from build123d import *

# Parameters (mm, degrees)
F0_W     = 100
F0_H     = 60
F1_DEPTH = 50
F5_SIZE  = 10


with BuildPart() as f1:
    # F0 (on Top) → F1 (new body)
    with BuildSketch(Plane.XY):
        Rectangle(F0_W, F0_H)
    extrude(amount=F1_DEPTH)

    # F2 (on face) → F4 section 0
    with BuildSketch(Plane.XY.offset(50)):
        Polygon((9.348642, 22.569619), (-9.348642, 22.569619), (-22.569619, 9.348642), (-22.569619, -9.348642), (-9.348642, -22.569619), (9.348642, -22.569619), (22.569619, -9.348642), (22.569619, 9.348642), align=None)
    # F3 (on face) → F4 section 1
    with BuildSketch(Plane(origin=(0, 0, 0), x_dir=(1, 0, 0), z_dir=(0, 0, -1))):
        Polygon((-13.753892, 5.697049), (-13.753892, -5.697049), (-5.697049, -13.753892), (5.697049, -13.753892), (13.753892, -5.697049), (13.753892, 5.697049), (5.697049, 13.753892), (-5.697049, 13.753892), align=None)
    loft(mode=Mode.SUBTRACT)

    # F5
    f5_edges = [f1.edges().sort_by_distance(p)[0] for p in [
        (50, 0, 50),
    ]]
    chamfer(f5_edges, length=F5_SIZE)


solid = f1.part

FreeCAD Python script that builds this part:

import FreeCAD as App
import Part
import Sketcher

V = App.Vector


def edges_at(feature, points):
    """Names of the edges that pass closest to the given points."""
    edges = feature.Shape.Edges
    near = lambda p: min(range(len(edges)), key=lambda i: edges[i].distToShape(Part.Vertex(*p))[0])
    return sorted({f"Edge{near(p) + 1}" for p in points})

doc = App.newDocument("Part")
params = doc.addObject("Spreadsheet::Sheet", "Params")
for row, (alias, value) in enumerate([
    ("sketch1_width", "100 mm"),
    ("sketch1_height", "60 mm"),
    ("pad1_length", "50 mm"),
    ("chamfer_size", "10 mm"),
], start=1):
    params.set(f"A{row}", alias)
    params.set(f"B{row}", "=" + value)
    params.setAlias(f"B{row}", alias)

body = doc.addObject("PartDesign::Body", "Body")

sketch1 = doc.addObject("Sketcher::SketchObject", "Sketch")
body.addObject(sketch1)
sketch1.AttachmentSupport = (doc.XY_Plane, [""])
sketch1.MapMode = "FlatFace"
sketch1.addGeometry([
    Part.LineSegment(V(-50, 30, 0), V(-50, -30, 0)),
    Part.LineSegment(V(-50, -30, 0), V(50, -30, 0)),
    Part.LineSegment(V(50, -30, 0), V(50, 30, 0)),
    Part.LineSegment(V(50, 30, 0), V(-50, 30, 0)),
], False)
sketch1.addConstraint([
    Sketcher.Constraint("Coincident", 0, 2, 1, 1),
    Sketcher.Constraint("Coincident", 1, 2, 2, 1),
    Sketcher.Constraint("Coincident", 2, 2, 3, 1),
    Sketcher.Constraint("Coincident", 3, 2, 0, 1),
    Sketcher.Constraint("Vertical", 0),
    Sketcher.Constraint("Horizontal", 1),
    Sketcher.Constraint("Vertical", 2),
    Sketcher.Constraint("Horizontal", 3),
    Sketcher.Constraint("Symmetric", 0, 2, 2, 2, -1, 1),
    Sketcher.Constraint("DistanceX", 1, 1, 1, 2, 100.0),
    Sketcher.Constraint("DistanceY", 0, 2, 0, 1, 60.0),
])
sketch1.setExpression("Constraints[9]", "Params.sketch1_width")
sketch1.setExpression("Constraints[10]", "Params.sketch1_height")
pad1 = doc.addObject("PartDesign::Pad", "Pad")
body.addObject(pad1)
pad1.Profile = sketch1
pad1.setExpression("Length", "Params.pad1_length")

sketch2 = doc.addObject("Sketcher::SketchObject", "Sketch001")
body.addObject(sketch2)
sketch2.AttachmentSupport = (doc.XY_Plane, [""])
sketch2.MapMode = "FlatFace"
sketch2.AttachmentOffset = App.Placement(V(0, 0, 50), App.Rotation())
sketch2.addGeometry([
    Part.LineSegment(V(9, 23, 0), V(-9, 23, 0)),
    Part.LineSegment(V(-9, 23, 0), V(-23, 9, 0)),
    Part.LineSegment(V(-23, 9, 0), V(-23, -9, 0)),
    Part.LineSegment(V(-23, -9, 0), V(-9, -23, 0)),
    Part.LineSegment(V(-9, -23, 0), V(9, -23, 0)),
    Part.LineSegment(V(9, -23, 0), V(23, -9, 0)),
    Part.LineSegment(V(23, -9, 0), V(23, 9, 0)),
    Part.LineSegment(V(23, 9, 0), V(9, 23, 0)),
], False)
sketch2.addConstraint([
    Sketcher.Constraint("Coincident", 0, 2, 1, 1),
    Sketcher.Constraint("Coincident", 1, 2, 2, 1),
    Sketcher.Constraint("Coincident", 2, 2, 3, 1),
    Sketcher.Constraint("Coincident", 3, 2, 4, 1),
    Sketcher.Constraint("Coincident", 4, 2, 5, 1),
    Sketcher.Constraint("Coincident", 5, 2, 6, 1),
    Sketcher.Constraint("Coincident", 6, 2, 7, 1),
    Sketcher.Constraint("Coincident", 7, 2, 0, 1),
    Sketcher.Constraint("Horizontal", 0),
    Sketcher.Constraint("Vertical", 2),
    Sketcher.Constraint("Horizontal", 4),
    Sketcher.Constraint("Vertical", 6),
    Sketcher.Constraint("Symmetric", 0, 2, 4, 2, -1, 1),
    Sketcher.Constraint("Symmetric", 1, 2, 5, 2, -1, 1),
    Sketcher.Constraint("Perpendicular", 1, 3),
    Sketcher.Constraint("Perpendicular", 5, 7),
    Sketcher.Constraint("Horizontal", 2, 2, 5, 2),
    Sketcher.Constraint("Horizontal", 1, 2, 6, 2),
    Sketcher.Constraint("Vertical", 0, 2, 3, 2),
    Sketcher.Constraint("Equal", 4, 2),
    Sketcher.Constraint("DistanceX", 0, 2, 0, 1, 18.697284),
    Sketcher.Constraint("DistanceY", -1, 1, 0, 2, 22.569619),
])

sketch3 = doc.addObject("Sketcher::SketchObject", "Sketch002")
body.addObject(sketch3)
sketch3.AttachmentSupport = (doc.XY_Plane, [""])
sketch3.MapMode = "FlatFace"
sketch3.addGeometry([
    Part.LineSegment(V(-14, -6, 0), V(-14, 6, 0)),
    Part.LineSegment(V(-14, 6, 0), V(-6, 14, 0)),
    Part.LineSegment(V(-6, 14, 0), V(6, 14, 0)),
    Part.LineSegment(V(6, 14, 0), V(14, 6, 0)),
    Part.LineSegment(V(14, 6, 0), V(14, -6, 0)),
    Part.LineSegment(V(14, -6, 0), V(6, -14, 0)),
    Part.LineSegment(V(6, -14, 0), V(-6, -14, 0)),
    Part.LineSegment(V(-6, -14, 0), V(-14, -6, 0)),
], False)
sketch3.addConstraint([
    Sketcher.Constraint("Coincident", 0, 2, 1, 1),
    Sketcher.Constraint("Coincident", 1, 2, 2, 1),
    Sketcher.Constraint("Coincident", 2, 2, 3, 1),
    Sketcher.Constraint("Coincident", 3, 2, 4, 1),
    Sketcher.Constraint("Coincident", 4, 2, 5, 1),
    Sketcher.Constraint("Coincident", 5, 2, 6, 1),
    Sketcher.Constraint("Coincident", 6, 2, 7, 1),
    Sketcher.Constraint("Coincident", 7, 2, 0, 1),
    Sketcher.Constraint("Vertical", 0),
    Sketcher.Constraint("Horizontal", 2),
    Sketcher.Constraint("Vertical", 4),
    Sketcher.Constraint("Horizontal", 6),
    Sketcher.Constraint("Symmetric", 0, 2, 4, 2, -1, 1),
    Sketcher.Constraint("Symmetric", 1, 2, 5, 2, -1, 1),
    Sketcher.Constraint("Perpendicular", 1, 3),
    Sketcher.Constraint("Perpendicular", 5, 7),
    Sketcher.Constraint("Horizontal", 0, 2, 3, 2),
    Sketcher.Constraint("Horizontal", 4, 2, 7, 2),
    Sketcher.Constraint("Vertical", 2, 2, 5, 2),
    Sketcher.Constraint("Equal", 6, 0),
    Sketcher.Constraint("DistanceX", 2, 1, 2, 2, 11.394098),
    Sketcher.Constraint("DistanceX", 0, 2, 2, 2, 19.450941),
])

subtractiveloft = doc.addObject("PartDesign::SubtractiveLoft", "SubtractiveLoft")
body.addObject(subtractiveloft)
subtractiveloft.Profile = sketch2
subtractiveloft.Sections = [sketch3]
doc.recompute()

chamfer = doc.addObject("PartDesign::Chamfer", "Chamfer")
body.addObject(chamfer)
chamfer.Base = (subtractiveloft, edges_at(subtractiveloft, [(50, 0, 50)]))
chamfer.setExpression("Size", "Params.chamfer_size")

doc.recompute()
